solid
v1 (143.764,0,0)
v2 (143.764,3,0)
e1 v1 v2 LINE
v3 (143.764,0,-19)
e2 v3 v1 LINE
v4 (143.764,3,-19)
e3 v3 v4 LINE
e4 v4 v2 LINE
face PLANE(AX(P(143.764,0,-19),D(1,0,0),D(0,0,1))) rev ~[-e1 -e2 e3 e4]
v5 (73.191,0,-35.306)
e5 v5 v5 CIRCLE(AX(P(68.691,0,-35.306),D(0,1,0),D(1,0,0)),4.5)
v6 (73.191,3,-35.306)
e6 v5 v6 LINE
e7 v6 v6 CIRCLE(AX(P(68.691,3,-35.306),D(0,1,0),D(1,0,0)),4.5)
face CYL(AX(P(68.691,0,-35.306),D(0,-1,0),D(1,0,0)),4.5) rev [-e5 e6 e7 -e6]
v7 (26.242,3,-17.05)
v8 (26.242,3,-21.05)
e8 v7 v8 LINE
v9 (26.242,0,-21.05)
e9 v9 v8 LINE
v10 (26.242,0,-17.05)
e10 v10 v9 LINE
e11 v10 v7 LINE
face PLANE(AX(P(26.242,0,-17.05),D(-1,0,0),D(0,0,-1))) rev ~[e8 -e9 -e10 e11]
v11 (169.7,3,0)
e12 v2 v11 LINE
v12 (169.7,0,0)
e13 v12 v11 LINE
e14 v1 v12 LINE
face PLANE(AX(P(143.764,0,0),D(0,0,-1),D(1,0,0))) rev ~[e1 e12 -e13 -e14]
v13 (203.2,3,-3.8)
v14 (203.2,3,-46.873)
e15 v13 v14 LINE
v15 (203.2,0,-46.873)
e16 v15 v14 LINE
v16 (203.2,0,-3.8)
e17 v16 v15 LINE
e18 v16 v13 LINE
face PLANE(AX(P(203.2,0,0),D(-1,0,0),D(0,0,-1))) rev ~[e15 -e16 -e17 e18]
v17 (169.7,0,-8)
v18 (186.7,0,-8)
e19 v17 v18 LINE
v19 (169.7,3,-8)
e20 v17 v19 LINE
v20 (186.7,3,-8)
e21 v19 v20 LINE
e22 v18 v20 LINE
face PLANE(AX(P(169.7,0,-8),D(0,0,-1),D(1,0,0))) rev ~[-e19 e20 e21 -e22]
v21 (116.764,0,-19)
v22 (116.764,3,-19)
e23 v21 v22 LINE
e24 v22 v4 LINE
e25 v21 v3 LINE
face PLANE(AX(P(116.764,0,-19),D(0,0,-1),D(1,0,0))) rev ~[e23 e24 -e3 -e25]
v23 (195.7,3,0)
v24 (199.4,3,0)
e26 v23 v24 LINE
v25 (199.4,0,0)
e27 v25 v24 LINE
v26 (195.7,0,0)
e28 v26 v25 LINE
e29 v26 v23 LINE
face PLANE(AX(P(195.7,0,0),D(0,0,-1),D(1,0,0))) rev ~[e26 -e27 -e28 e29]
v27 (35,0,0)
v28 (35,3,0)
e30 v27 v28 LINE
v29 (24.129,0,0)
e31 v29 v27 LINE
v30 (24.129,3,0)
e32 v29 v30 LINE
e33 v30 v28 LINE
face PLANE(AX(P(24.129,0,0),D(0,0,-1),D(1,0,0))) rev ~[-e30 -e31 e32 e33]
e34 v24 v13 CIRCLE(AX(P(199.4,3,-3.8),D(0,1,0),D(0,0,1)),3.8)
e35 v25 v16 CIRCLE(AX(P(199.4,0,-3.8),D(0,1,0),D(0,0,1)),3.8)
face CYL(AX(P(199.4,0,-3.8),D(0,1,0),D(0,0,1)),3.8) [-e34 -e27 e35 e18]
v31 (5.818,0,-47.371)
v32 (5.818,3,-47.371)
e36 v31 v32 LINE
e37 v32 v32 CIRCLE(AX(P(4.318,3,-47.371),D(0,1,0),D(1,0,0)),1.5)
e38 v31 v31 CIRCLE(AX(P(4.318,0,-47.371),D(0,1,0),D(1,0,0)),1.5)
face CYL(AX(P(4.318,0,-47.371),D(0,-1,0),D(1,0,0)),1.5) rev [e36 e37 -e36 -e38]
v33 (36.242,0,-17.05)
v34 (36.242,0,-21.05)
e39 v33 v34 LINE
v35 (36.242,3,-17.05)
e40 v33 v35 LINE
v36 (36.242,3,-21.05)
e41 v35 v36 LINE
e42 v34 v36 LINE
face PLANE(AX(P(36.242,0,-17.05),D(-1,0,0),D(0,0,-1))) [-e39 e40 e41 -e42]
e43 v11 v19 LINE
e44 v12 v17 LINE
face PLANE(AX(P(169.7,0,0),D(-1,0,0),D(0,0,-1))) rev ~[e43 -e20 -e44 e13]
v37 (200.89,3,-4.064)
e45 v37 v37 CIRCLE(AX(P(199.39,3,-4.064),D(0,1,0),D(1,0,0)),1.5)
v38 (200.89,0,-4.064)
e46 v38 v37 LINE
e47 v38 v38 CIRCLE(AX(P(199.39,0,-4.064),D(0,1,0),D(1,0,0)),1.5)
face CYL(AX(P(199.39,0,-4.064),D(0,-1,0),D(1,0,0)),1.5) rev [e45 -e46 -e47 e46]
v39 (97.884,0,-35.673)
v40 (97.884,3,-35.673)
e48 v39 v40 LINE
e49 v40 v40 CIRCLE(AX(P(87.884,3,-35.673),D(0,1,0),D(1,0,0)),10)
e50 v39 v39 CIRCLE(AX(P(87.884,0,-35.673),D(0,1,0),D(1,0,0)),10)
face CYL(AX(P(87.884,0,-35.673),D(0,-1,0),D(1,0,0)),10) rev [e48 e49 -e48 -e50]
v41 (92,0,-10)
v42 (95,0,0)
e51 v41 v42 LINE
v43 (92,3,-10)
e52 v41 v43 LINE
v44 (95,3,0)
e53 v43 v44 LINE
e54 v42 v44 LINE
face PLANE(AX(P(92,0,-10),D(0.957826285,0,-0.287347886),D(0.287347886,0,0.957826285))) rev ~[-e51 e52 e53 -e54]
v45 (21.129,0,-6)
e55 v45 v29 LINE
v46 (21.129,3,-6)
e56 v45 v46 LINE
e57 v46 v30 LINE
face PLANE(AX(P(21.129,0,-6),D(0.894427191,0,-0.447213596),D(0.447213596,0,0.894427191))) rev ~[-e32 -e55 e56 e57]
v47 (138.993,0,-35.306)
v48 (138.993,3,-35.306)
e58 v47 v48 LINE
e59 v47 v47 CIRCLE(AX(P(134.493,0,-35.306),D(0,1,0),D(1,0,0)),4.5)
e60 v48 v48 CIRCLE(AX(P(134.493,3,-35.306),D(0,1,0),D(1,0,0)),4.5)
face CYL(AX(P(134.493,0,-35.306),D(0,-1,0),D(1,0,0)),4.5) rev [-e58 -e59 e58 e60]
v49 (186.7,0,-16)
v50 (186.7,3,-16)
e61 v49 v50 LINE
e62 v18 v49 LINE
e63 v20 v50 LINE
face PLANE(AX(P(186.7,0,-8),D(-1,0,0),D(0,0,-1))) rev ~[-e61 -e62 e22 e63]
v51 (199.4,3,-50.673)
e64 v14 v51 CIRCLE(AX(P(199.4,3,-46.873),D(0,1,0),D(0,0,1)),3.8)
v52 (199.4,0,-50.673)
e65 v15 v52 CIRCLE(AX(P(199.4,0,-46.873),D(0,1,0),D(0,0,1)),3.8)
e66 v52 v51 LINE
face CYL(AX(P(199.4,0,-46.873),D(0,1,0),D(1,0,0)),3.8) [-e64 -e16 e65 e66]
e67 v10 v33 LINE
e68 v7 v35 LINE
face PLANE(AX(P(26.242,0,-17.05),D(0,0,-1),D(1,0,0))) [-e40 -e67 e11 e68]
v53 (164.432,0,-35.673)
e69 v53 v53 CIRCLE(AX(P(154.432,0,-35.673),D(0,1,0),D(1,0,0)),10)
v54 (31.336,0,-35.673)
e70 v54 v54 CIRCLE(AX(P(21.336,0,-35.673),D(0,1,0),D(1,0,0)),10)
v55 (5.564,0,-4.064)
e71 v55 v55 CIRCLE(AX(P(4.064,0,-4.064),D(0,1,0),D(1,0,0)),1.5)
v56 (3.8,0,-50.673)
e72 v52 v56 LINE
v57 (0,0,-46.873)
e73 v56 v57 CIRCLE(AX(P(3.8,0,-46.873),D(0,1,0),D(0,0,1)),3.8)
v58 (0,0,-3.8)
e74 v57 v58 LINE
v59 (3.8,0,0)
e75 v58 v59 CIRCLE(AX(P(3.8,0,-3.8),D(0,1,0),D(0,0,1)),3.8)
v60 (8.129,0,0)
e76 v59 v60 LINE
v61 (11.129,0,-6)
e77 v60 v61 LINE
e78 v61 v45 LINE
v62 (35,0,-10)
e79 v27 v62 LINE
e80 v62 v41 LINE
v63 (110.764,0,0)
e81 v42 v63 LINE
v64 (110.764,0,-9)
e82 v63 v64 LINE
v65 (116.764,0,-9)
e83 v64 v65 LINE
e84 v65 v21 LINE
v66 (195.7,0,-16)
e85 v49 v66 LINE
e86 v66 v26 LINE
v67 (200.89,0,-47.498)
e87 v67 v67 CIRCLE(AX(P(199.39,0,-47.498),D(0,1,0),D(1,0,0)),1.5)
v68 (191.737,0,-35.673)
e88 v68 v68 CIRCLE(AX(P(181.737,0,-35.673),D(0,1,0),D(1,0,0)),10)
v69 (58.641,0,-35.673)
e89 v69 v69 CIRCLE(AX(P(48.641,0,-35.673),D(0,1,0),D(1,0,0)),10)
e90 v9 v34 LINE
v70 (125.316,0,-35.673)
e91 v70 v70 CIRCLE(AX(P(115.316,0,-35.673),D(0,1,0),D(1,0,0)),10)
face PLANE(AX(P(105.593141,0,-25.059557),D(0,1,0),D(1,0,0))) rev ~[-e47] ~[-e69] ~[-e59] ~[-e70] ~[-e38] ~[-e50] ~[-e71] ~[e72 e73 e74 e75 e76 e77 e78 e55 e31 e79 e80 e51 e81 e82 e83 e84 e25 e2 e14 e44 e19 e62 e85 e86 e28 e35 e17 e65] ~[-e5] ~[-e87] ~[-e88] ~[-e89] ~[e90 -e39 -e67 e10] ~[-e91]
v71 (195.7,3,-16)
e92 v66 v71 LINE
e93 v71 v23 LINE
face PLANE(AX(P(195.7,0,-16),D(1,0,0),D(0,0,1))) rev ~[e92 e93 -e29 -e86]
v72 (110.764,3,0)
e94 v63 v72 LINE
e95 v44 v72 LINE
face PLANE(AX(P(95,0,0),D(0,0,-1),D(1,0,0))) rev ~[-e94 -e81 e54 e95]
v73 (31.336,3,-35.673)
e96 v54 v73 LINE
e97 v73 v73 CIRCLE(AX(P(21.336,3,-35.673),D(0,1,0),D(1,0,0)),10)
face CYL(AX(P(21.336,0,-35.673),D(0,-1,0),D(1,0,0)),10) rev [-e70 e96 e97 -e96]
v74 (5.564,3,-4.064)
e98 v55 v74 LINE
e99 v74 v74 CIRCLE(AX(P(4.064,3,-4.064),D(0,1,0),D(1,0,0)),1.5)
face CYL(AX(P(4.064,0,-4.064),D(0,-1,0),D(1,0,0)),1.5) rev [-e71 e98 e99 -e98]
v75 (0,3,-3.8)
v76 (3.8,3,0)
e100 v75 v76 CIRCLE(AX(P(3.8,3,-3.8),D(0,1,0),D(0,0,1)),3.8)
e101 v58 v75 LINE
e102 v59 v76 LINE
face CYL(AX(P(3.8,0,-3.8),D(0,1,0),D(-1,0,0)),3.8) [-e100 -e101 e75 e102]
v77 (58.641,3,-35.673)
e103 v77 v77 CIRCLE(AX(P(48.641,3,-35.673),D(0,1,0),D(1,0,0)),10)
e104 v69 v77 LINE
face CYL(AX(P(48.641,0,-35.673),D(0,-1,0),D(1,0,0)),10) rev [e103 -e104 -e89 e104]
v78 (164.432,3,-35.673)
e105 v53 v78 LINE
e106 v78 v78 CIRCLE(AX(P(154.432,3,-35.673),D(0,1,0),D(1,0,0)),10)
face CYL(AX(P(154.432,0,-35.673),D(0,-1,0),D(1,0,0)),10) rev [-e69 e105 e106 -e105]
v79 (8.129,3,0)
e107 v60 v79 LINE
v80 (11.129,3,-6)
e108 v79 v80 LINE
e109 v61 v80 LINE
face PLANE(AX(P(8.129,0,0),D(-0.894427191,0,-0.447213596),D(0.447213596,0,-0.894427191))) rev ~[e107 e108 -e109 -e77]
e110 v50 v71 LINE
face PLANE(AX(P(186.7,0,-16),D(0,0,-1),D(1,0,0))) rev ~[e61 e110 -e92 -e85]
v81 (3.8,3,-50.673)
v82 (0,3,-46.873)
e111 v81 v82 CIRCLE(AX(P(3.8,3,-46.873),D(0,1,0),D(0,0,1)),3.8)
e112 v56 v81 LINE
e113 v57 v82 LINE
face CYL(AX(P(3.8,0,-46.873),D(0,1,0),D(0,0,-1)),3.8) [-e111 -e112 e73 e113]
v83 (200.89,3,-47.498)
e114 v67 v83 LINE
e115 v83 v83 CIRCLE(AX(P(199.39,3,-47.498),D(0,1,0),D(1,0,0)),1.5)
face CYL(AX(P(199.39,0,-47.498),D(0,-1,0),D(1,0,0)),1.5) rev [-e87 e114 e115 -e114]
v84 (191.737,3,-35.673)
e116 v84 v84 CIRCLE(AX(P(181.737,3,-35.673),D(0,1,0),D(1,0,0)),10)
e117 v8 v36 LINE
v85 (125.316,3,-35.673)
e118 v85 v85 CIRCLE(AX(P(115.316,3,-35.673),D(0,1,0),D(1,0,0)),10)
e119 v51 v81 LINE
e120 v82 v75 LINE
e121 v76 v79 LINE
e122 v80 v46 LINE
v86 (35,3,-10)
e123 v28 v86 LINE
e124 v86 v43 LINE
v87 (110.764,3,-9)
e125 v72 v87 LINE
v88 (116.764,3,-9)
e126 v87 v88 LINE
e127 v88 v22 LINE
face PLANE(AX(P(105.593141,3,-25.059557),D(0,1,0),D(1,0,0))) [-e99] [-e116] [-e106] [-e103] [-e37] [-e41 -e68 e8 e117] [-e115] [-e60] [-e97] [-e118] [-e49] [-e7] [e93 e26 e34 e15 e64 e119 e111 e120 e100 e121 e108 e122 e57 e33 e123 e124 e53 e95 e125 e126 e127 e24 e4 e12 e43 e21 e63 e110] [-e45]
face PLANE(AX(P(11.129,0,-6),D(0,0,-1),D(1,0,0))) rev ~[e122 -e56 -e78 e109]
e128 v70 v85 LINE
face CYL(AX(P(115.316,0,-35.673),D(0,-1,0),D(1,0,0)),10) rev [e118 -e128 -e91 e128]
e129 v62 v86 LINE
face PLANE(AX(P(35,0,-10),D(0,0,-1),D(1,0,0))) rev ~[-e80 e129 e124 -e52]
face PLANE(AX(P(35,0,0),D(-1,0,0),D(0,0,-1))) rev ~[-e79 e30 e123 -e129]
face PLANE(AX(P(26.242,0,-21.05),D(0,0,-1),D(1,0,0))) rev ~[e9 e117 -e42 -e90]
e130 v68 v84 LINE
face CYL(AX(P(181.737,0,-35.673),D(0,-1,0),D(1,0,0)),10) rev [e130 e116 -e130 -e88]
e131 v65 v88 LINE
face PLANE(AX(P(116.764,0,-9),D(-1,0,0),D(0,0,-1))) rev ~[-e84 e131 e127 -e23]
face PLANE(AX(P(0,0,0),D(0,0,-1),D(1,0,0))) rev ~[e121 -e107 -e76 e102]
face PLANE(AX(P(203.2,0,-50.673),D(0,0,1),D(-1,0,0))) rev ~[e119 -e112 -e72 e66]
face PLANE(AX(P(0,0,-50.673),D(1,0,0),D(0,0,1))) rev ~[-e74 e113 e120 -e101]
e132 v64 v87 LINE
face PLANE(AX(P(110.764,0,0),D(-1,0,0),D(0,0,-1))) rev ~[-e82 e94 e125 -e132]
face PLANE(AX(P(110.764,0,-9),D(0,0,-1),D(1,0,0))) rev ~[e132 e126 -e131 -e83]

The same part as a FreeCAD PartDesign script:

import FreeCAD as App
import Part
import Sketcher
from FreeCAD import Vector


def edges_at(feature, points):
    """Names of the edges that pass closest to the given points."""
    edges = feature.Shape.Edges
    near = lambda p: min(range(len(edges)), key=lambda i: edges[i].distToShape(Part.Vertex(*p))[0])
    return sorted({f"Edge{near(p) + 1}" for p in points})


def add_polygon(sketch, points):
    """Adds a closed chain of lines whose ends are joined by coincident constraints."""
    first, n = sketch.GeometryCount, len(points)
    for a, b in zip(points, points[1:] + points[:1]):
        sketch.addGeometry(Part.LineSegment(App.Vector(*a, 0), App.Vector(*b, 0)), False)
    for i in range(n):
        sketch.addConstraint(Sketcher.Constraint("Coincident", first + i, 2, first + (i + 1) % n, 1))

doc = App.newDocument("Part")
body = doc.addObject("PartDesign::Body", "Body")

sketch1 = doc.addObject("Sketcher::SketchObject", "Sketch")
body.addObject(sketch1)
sketch1.AttachmentSupport = (doc.XZ_Plane, [""])
sketch1.MapMode = "FlatFace"
add_polygon(sketch1, [(195.7, -16), (195.7, 0), (203.2, 0), (203.2, -50.7), (0, -50.7), (0, 0), (8.1, 0), (11.1, -6), (21.1, -6), (24.1, 0), (35, 0), (35, -10), (92, -10), (95, 0), (110.8, 0), (110.8, -9), (116.8, -9), (116.8, -19), (143.8, -19), (143.8, 0), (169.7, 0), (169.7, -8), (186.7, -8), (186.7, -16)])
sketch1.addGeometry(Part.Circle(Vector(4.1, -4.1, 0), Vector(0, 0, 1), 1.5), False)
add_polygon(sketch1, [(36.2, -17.1), (26.2, -17.1), (26.2, -21.1), (36.2, -21.1)])
sketch1.addGeometry(Part.Circle(Vector(199.4, -4.1, 0), Vector(0, 0, 1), 1.5), False)
sketch1.addGeometry(Part.Circle(Vector(21.3, -35.7, 0), Vector(0, 0, 1), 10), False)
sketch1.addGeometry(Part.Circle(Vector(48.6, -35.7, 0), Vector(0, 0, 1), 10), False)
sketch1.addGeometry(Part.Circle(Vector(68.7, -35.3, 0), Vector(0, 0, 1), 4.5), False)
sketch1.addGeometry(Part.Circle(Vector(87.9, -35.7, 0), Vector(0, 0, 1), 10), False)
sketch1.addGeometry(Part.Circle(Vector(4.3, -47.4, 0), Vector(0, 0, 1), 1.5), False)
sketch1.addGeometry(Part.Circle(Vector(115.3, -35.7, 0), Vector(0, 0, 1), 10), False)
sketch1.addGeometry(Part.Circle(Vector(134.5, -35.3, 0), Vector(0, 0, 1), 4.5), False)
sketch1.addGeometry(Part.Circle(Vector(154.4, -35.7, 0), Vector(0, 0, 1), 10), False)
sketch1.addGeometry(Part.Circle(Vector(181.7, -35.7, 0), Vector(0, 0, 1), 10), False)
sketch1.addGeometry(Part.Circle(Vector(199.4, -47.5, 0), Vector(0, 0, 1), 1.5), False)
sketch1.addConstraint([
    Sketcher.Constraint("Vertical", 0),
    Sketcher.Constraint("Horizontal", 1),
    Sketcher.Constraint("Vertical", 2),
    Sketcher.Constraint("Horizontal", 3),
    Sketcher.Constraint("Vertical", 4),
    Sketcher.Constraint("Horizontal", 5),
    Sketcher.Constraint("Horizontal", 7),
    Sketcher.Constraint("Horizontal", 9),
    Sketcher.Constraint("Vertical", 10),
    Sketcher.Constraint("Horizontal", 11),
    Sketcher.Constraint("Horizontal", 13),
    Sketcher.Constraint("Vertical", 14),
    Sketcher.Constraint("Horizontal", 15),
    Sketcher.Constraint("Vertical", 16),
    Sketcher.Constraint("Horizontal", 17),
    Sketcher.Constraint("Vertical", 18),
    Sketcher.Constraint("Horizontal", 19),
    Sketcher.Constraint("Vertical", 20),
    Sketcher.Constraint("Horizontal", 21),
    Sketcher.Constraint("Vertical", 22),
    Sketcher.Constraint("Horizontal", 23),
    Sketcher.Constraint("Horizontal", 25),
    Sketcher.Constraint("Vertical", 26),
    Sketcher.Constraint("Horizontal", 27),
    Sketcher.Constraint("Vertical", 28),
    Sketcher.Constraint("Coincident", 4, 2, -1, 1),
    Sketcher.Constraint("Equal", 24, 29),
    Sketcher.Constraint("Equal", 30, 31),
    Sketcher.Constraint("Equal", 31, 33),
    Sketcher.Constraint("Equal", 29, 34),
    Sketcher.Constraint("Equal", 33, 35),
    Sketcher.Constraint("Equal", 32, 36),
    Sketcher.Constraint("Equal", 35, 37),
    Sketcher.Constraint("Equal", 37, 38),
    Sketcher.Constraint("Equal", 34, 39),
    Sketcher.Constraint("PointOnObject", 0, 2, -1),
    Sketcher.Constraint("PointOnObject", 8, 2, -1),
    Sketcher.Constraint("PointOnObject", 12, 2, -1),
    Sketcher.Constraint("PointOnObject", 18, 2, -1),
    Sketcher.Constraint("Horizontal", 24, 3, 29, 3),
    Sketcher.Constraint("Horizontal", 30, 3, 31, 3),
    Sketcher.Constraint("Horizontal", 31, 3, 33, 3),
    Sketcher.Constraint("Horizontal", 33, 3, 35, 3),
    Sketcher.Constraint("Horizontal", 32, 3, 36, 3),
    Sketcher.Constraint("Horizontal", 35, 3, 37, 3),
    Sketcher.Constraint("Horizontal", 37, 3, 38, 3),
    Sketcher.Constraint("Vertical", 29, 3, 39, 3),
    Sketcher.Constraint("Equal", 7, 25),
    Sketcher.Constraint("Equal", 27, 10),
    Sketcher.Constraint("Equal", 23, 14),
    Sketcher.Constraint("Equal", 10, 16),
    Sketcher.Constraint("Equal", 20, 22),
    Sketcher.Constraint("Equal", 6, 8),
    Sketcher.Constraint("Diameter", 24, 3.0),
    Sketcher.Constraint("Diameter", 30, 20.0),
    Sketcher.Constraint("Diameter", 32, 9.0),
    Sketcher.Constraint("DistanceX", 7, 1, 7, 2, 10.0),
    Sketcher.Constraint("DistanceX", 11, 1, 11, 2, 57.0),
    Sketcher.Constraint("DistanceX", 15, 1, 15, 2, 6.0),
    Sketcher.Constraint("DistanceX", 17, 1, 17, 2, 27.0),
    Sketcher.Constraint("DistanceX", 21, 1, 21, 2, 17.0),
    Sketcher.Constraint("DistanceX", 23, 1, 23, 2, 9.0),
    Sketcher.Constraint("DistanceY", 0, 1, 0, 2, 16.0),
    Sketcher.Constraint("DistanceY", 26, 2, 26, 1, 4.0),
    Sketcher.Constraint("DistanceX", 1, 1, 1, 2, 7.5),
    Sketcher.Constraint("DistanceX", 3, 2, 3, 1, 203.2),
    Sketcher.Constraint("DistanceY", 6, 2, -1, 1, 6.0),
    Sketcher.Constraint("DistanceX", -1, 1, 9, 2, 35.0),
    Sketcher.Constraint("DistanceX", -1, 1, 12, 2, 95.0),
    Sketcher.Constraint("DistanceY", 2, 2, 38, 3, 15.0),
    Sketcher.Constraint("DistanceX", 5, 2, 6, 2, 3.0),
    Sketcher.Constraint("DistanceX", 5, 1, 5, 2, 8.129),
    Sketcher.Constraint("DistanceX", 13, 1, 13, 2, 15.764),
    Sketcher.Constraint("DistanceY", 2, 2, 2, 1, 50.673),
    Sketcher.Constraint("DistanceX", -1, 1, 29, 3, 199.39),
    Sketcher.Constraint("DistanceY", 25, 2, -1, 1, 17.05),
    Sketcher.Constraint("DistanceX", 31, 3, 32, 3, 20.05),
    Sketcher.Constraint("DistanceX", 24, 3, 33, 3, 83.82),
    Sketcher.Constraint("DistanceX", 30, 3, 35, 3, 93.98),
    Sketcher.Constraint("DistanceX", 33, 3, 13, 2, 22.88),
    Sketcher.Constraint("DistanceY", 24, 3, -1, 1, 4.064),
    Sketcher.Constraint("DistanceX", -1, 1, 30, 3, 21.336),
    Sketcher.Constraint("DistanceX", -1, 1, 31, 3, 48.641),
    Sketcher.Constraint("DistanceY", 32, 3, -1, 1, 35.306),
    Sketcher.Constraint("DistanceX", -1, 1, 34, 3, 4.318),
    Sketcher.Constraint("DistanceY", 34, 3, -1, 1, 47.371),
    Sketcher.Constraint("DistanceX", -1, 1, 36, 3, 134.493),
    Sketcher.Constraint("DistanceX", -1, 1, 37, 3, 154.432),
    Sketcher.Constraint("DistanceX", -1, 1, 38, 3, 181.737),
    Sketcher.Constraint("DistanceY", 39, 3, -1, 1, 47.498),
    Sketcher.Constraint("DistanceX", -1, 1, 25, 2, 26.242),
])
pad1 = doc.addObject("PartDesign::Pad", "Pad")
body.addObject(pad1)
pad1.Profile = sketch1
pad1.Length = 3
pad1.Reversed = True
doc.recompute()

fillet = doc.addObject("PartDesign::Fillet", "Fillet")
body.addObject(fillet)
fillet.Base = (pad1, edges_at(pad1, [
    (0, 1.5, 0),
    (0, 1.5, -50.673),
    (203.2, 1.5, -50.673),
    (203.2, 1.5, 0),
]))
fillet.Radius = 3.8

doc.recompute()
